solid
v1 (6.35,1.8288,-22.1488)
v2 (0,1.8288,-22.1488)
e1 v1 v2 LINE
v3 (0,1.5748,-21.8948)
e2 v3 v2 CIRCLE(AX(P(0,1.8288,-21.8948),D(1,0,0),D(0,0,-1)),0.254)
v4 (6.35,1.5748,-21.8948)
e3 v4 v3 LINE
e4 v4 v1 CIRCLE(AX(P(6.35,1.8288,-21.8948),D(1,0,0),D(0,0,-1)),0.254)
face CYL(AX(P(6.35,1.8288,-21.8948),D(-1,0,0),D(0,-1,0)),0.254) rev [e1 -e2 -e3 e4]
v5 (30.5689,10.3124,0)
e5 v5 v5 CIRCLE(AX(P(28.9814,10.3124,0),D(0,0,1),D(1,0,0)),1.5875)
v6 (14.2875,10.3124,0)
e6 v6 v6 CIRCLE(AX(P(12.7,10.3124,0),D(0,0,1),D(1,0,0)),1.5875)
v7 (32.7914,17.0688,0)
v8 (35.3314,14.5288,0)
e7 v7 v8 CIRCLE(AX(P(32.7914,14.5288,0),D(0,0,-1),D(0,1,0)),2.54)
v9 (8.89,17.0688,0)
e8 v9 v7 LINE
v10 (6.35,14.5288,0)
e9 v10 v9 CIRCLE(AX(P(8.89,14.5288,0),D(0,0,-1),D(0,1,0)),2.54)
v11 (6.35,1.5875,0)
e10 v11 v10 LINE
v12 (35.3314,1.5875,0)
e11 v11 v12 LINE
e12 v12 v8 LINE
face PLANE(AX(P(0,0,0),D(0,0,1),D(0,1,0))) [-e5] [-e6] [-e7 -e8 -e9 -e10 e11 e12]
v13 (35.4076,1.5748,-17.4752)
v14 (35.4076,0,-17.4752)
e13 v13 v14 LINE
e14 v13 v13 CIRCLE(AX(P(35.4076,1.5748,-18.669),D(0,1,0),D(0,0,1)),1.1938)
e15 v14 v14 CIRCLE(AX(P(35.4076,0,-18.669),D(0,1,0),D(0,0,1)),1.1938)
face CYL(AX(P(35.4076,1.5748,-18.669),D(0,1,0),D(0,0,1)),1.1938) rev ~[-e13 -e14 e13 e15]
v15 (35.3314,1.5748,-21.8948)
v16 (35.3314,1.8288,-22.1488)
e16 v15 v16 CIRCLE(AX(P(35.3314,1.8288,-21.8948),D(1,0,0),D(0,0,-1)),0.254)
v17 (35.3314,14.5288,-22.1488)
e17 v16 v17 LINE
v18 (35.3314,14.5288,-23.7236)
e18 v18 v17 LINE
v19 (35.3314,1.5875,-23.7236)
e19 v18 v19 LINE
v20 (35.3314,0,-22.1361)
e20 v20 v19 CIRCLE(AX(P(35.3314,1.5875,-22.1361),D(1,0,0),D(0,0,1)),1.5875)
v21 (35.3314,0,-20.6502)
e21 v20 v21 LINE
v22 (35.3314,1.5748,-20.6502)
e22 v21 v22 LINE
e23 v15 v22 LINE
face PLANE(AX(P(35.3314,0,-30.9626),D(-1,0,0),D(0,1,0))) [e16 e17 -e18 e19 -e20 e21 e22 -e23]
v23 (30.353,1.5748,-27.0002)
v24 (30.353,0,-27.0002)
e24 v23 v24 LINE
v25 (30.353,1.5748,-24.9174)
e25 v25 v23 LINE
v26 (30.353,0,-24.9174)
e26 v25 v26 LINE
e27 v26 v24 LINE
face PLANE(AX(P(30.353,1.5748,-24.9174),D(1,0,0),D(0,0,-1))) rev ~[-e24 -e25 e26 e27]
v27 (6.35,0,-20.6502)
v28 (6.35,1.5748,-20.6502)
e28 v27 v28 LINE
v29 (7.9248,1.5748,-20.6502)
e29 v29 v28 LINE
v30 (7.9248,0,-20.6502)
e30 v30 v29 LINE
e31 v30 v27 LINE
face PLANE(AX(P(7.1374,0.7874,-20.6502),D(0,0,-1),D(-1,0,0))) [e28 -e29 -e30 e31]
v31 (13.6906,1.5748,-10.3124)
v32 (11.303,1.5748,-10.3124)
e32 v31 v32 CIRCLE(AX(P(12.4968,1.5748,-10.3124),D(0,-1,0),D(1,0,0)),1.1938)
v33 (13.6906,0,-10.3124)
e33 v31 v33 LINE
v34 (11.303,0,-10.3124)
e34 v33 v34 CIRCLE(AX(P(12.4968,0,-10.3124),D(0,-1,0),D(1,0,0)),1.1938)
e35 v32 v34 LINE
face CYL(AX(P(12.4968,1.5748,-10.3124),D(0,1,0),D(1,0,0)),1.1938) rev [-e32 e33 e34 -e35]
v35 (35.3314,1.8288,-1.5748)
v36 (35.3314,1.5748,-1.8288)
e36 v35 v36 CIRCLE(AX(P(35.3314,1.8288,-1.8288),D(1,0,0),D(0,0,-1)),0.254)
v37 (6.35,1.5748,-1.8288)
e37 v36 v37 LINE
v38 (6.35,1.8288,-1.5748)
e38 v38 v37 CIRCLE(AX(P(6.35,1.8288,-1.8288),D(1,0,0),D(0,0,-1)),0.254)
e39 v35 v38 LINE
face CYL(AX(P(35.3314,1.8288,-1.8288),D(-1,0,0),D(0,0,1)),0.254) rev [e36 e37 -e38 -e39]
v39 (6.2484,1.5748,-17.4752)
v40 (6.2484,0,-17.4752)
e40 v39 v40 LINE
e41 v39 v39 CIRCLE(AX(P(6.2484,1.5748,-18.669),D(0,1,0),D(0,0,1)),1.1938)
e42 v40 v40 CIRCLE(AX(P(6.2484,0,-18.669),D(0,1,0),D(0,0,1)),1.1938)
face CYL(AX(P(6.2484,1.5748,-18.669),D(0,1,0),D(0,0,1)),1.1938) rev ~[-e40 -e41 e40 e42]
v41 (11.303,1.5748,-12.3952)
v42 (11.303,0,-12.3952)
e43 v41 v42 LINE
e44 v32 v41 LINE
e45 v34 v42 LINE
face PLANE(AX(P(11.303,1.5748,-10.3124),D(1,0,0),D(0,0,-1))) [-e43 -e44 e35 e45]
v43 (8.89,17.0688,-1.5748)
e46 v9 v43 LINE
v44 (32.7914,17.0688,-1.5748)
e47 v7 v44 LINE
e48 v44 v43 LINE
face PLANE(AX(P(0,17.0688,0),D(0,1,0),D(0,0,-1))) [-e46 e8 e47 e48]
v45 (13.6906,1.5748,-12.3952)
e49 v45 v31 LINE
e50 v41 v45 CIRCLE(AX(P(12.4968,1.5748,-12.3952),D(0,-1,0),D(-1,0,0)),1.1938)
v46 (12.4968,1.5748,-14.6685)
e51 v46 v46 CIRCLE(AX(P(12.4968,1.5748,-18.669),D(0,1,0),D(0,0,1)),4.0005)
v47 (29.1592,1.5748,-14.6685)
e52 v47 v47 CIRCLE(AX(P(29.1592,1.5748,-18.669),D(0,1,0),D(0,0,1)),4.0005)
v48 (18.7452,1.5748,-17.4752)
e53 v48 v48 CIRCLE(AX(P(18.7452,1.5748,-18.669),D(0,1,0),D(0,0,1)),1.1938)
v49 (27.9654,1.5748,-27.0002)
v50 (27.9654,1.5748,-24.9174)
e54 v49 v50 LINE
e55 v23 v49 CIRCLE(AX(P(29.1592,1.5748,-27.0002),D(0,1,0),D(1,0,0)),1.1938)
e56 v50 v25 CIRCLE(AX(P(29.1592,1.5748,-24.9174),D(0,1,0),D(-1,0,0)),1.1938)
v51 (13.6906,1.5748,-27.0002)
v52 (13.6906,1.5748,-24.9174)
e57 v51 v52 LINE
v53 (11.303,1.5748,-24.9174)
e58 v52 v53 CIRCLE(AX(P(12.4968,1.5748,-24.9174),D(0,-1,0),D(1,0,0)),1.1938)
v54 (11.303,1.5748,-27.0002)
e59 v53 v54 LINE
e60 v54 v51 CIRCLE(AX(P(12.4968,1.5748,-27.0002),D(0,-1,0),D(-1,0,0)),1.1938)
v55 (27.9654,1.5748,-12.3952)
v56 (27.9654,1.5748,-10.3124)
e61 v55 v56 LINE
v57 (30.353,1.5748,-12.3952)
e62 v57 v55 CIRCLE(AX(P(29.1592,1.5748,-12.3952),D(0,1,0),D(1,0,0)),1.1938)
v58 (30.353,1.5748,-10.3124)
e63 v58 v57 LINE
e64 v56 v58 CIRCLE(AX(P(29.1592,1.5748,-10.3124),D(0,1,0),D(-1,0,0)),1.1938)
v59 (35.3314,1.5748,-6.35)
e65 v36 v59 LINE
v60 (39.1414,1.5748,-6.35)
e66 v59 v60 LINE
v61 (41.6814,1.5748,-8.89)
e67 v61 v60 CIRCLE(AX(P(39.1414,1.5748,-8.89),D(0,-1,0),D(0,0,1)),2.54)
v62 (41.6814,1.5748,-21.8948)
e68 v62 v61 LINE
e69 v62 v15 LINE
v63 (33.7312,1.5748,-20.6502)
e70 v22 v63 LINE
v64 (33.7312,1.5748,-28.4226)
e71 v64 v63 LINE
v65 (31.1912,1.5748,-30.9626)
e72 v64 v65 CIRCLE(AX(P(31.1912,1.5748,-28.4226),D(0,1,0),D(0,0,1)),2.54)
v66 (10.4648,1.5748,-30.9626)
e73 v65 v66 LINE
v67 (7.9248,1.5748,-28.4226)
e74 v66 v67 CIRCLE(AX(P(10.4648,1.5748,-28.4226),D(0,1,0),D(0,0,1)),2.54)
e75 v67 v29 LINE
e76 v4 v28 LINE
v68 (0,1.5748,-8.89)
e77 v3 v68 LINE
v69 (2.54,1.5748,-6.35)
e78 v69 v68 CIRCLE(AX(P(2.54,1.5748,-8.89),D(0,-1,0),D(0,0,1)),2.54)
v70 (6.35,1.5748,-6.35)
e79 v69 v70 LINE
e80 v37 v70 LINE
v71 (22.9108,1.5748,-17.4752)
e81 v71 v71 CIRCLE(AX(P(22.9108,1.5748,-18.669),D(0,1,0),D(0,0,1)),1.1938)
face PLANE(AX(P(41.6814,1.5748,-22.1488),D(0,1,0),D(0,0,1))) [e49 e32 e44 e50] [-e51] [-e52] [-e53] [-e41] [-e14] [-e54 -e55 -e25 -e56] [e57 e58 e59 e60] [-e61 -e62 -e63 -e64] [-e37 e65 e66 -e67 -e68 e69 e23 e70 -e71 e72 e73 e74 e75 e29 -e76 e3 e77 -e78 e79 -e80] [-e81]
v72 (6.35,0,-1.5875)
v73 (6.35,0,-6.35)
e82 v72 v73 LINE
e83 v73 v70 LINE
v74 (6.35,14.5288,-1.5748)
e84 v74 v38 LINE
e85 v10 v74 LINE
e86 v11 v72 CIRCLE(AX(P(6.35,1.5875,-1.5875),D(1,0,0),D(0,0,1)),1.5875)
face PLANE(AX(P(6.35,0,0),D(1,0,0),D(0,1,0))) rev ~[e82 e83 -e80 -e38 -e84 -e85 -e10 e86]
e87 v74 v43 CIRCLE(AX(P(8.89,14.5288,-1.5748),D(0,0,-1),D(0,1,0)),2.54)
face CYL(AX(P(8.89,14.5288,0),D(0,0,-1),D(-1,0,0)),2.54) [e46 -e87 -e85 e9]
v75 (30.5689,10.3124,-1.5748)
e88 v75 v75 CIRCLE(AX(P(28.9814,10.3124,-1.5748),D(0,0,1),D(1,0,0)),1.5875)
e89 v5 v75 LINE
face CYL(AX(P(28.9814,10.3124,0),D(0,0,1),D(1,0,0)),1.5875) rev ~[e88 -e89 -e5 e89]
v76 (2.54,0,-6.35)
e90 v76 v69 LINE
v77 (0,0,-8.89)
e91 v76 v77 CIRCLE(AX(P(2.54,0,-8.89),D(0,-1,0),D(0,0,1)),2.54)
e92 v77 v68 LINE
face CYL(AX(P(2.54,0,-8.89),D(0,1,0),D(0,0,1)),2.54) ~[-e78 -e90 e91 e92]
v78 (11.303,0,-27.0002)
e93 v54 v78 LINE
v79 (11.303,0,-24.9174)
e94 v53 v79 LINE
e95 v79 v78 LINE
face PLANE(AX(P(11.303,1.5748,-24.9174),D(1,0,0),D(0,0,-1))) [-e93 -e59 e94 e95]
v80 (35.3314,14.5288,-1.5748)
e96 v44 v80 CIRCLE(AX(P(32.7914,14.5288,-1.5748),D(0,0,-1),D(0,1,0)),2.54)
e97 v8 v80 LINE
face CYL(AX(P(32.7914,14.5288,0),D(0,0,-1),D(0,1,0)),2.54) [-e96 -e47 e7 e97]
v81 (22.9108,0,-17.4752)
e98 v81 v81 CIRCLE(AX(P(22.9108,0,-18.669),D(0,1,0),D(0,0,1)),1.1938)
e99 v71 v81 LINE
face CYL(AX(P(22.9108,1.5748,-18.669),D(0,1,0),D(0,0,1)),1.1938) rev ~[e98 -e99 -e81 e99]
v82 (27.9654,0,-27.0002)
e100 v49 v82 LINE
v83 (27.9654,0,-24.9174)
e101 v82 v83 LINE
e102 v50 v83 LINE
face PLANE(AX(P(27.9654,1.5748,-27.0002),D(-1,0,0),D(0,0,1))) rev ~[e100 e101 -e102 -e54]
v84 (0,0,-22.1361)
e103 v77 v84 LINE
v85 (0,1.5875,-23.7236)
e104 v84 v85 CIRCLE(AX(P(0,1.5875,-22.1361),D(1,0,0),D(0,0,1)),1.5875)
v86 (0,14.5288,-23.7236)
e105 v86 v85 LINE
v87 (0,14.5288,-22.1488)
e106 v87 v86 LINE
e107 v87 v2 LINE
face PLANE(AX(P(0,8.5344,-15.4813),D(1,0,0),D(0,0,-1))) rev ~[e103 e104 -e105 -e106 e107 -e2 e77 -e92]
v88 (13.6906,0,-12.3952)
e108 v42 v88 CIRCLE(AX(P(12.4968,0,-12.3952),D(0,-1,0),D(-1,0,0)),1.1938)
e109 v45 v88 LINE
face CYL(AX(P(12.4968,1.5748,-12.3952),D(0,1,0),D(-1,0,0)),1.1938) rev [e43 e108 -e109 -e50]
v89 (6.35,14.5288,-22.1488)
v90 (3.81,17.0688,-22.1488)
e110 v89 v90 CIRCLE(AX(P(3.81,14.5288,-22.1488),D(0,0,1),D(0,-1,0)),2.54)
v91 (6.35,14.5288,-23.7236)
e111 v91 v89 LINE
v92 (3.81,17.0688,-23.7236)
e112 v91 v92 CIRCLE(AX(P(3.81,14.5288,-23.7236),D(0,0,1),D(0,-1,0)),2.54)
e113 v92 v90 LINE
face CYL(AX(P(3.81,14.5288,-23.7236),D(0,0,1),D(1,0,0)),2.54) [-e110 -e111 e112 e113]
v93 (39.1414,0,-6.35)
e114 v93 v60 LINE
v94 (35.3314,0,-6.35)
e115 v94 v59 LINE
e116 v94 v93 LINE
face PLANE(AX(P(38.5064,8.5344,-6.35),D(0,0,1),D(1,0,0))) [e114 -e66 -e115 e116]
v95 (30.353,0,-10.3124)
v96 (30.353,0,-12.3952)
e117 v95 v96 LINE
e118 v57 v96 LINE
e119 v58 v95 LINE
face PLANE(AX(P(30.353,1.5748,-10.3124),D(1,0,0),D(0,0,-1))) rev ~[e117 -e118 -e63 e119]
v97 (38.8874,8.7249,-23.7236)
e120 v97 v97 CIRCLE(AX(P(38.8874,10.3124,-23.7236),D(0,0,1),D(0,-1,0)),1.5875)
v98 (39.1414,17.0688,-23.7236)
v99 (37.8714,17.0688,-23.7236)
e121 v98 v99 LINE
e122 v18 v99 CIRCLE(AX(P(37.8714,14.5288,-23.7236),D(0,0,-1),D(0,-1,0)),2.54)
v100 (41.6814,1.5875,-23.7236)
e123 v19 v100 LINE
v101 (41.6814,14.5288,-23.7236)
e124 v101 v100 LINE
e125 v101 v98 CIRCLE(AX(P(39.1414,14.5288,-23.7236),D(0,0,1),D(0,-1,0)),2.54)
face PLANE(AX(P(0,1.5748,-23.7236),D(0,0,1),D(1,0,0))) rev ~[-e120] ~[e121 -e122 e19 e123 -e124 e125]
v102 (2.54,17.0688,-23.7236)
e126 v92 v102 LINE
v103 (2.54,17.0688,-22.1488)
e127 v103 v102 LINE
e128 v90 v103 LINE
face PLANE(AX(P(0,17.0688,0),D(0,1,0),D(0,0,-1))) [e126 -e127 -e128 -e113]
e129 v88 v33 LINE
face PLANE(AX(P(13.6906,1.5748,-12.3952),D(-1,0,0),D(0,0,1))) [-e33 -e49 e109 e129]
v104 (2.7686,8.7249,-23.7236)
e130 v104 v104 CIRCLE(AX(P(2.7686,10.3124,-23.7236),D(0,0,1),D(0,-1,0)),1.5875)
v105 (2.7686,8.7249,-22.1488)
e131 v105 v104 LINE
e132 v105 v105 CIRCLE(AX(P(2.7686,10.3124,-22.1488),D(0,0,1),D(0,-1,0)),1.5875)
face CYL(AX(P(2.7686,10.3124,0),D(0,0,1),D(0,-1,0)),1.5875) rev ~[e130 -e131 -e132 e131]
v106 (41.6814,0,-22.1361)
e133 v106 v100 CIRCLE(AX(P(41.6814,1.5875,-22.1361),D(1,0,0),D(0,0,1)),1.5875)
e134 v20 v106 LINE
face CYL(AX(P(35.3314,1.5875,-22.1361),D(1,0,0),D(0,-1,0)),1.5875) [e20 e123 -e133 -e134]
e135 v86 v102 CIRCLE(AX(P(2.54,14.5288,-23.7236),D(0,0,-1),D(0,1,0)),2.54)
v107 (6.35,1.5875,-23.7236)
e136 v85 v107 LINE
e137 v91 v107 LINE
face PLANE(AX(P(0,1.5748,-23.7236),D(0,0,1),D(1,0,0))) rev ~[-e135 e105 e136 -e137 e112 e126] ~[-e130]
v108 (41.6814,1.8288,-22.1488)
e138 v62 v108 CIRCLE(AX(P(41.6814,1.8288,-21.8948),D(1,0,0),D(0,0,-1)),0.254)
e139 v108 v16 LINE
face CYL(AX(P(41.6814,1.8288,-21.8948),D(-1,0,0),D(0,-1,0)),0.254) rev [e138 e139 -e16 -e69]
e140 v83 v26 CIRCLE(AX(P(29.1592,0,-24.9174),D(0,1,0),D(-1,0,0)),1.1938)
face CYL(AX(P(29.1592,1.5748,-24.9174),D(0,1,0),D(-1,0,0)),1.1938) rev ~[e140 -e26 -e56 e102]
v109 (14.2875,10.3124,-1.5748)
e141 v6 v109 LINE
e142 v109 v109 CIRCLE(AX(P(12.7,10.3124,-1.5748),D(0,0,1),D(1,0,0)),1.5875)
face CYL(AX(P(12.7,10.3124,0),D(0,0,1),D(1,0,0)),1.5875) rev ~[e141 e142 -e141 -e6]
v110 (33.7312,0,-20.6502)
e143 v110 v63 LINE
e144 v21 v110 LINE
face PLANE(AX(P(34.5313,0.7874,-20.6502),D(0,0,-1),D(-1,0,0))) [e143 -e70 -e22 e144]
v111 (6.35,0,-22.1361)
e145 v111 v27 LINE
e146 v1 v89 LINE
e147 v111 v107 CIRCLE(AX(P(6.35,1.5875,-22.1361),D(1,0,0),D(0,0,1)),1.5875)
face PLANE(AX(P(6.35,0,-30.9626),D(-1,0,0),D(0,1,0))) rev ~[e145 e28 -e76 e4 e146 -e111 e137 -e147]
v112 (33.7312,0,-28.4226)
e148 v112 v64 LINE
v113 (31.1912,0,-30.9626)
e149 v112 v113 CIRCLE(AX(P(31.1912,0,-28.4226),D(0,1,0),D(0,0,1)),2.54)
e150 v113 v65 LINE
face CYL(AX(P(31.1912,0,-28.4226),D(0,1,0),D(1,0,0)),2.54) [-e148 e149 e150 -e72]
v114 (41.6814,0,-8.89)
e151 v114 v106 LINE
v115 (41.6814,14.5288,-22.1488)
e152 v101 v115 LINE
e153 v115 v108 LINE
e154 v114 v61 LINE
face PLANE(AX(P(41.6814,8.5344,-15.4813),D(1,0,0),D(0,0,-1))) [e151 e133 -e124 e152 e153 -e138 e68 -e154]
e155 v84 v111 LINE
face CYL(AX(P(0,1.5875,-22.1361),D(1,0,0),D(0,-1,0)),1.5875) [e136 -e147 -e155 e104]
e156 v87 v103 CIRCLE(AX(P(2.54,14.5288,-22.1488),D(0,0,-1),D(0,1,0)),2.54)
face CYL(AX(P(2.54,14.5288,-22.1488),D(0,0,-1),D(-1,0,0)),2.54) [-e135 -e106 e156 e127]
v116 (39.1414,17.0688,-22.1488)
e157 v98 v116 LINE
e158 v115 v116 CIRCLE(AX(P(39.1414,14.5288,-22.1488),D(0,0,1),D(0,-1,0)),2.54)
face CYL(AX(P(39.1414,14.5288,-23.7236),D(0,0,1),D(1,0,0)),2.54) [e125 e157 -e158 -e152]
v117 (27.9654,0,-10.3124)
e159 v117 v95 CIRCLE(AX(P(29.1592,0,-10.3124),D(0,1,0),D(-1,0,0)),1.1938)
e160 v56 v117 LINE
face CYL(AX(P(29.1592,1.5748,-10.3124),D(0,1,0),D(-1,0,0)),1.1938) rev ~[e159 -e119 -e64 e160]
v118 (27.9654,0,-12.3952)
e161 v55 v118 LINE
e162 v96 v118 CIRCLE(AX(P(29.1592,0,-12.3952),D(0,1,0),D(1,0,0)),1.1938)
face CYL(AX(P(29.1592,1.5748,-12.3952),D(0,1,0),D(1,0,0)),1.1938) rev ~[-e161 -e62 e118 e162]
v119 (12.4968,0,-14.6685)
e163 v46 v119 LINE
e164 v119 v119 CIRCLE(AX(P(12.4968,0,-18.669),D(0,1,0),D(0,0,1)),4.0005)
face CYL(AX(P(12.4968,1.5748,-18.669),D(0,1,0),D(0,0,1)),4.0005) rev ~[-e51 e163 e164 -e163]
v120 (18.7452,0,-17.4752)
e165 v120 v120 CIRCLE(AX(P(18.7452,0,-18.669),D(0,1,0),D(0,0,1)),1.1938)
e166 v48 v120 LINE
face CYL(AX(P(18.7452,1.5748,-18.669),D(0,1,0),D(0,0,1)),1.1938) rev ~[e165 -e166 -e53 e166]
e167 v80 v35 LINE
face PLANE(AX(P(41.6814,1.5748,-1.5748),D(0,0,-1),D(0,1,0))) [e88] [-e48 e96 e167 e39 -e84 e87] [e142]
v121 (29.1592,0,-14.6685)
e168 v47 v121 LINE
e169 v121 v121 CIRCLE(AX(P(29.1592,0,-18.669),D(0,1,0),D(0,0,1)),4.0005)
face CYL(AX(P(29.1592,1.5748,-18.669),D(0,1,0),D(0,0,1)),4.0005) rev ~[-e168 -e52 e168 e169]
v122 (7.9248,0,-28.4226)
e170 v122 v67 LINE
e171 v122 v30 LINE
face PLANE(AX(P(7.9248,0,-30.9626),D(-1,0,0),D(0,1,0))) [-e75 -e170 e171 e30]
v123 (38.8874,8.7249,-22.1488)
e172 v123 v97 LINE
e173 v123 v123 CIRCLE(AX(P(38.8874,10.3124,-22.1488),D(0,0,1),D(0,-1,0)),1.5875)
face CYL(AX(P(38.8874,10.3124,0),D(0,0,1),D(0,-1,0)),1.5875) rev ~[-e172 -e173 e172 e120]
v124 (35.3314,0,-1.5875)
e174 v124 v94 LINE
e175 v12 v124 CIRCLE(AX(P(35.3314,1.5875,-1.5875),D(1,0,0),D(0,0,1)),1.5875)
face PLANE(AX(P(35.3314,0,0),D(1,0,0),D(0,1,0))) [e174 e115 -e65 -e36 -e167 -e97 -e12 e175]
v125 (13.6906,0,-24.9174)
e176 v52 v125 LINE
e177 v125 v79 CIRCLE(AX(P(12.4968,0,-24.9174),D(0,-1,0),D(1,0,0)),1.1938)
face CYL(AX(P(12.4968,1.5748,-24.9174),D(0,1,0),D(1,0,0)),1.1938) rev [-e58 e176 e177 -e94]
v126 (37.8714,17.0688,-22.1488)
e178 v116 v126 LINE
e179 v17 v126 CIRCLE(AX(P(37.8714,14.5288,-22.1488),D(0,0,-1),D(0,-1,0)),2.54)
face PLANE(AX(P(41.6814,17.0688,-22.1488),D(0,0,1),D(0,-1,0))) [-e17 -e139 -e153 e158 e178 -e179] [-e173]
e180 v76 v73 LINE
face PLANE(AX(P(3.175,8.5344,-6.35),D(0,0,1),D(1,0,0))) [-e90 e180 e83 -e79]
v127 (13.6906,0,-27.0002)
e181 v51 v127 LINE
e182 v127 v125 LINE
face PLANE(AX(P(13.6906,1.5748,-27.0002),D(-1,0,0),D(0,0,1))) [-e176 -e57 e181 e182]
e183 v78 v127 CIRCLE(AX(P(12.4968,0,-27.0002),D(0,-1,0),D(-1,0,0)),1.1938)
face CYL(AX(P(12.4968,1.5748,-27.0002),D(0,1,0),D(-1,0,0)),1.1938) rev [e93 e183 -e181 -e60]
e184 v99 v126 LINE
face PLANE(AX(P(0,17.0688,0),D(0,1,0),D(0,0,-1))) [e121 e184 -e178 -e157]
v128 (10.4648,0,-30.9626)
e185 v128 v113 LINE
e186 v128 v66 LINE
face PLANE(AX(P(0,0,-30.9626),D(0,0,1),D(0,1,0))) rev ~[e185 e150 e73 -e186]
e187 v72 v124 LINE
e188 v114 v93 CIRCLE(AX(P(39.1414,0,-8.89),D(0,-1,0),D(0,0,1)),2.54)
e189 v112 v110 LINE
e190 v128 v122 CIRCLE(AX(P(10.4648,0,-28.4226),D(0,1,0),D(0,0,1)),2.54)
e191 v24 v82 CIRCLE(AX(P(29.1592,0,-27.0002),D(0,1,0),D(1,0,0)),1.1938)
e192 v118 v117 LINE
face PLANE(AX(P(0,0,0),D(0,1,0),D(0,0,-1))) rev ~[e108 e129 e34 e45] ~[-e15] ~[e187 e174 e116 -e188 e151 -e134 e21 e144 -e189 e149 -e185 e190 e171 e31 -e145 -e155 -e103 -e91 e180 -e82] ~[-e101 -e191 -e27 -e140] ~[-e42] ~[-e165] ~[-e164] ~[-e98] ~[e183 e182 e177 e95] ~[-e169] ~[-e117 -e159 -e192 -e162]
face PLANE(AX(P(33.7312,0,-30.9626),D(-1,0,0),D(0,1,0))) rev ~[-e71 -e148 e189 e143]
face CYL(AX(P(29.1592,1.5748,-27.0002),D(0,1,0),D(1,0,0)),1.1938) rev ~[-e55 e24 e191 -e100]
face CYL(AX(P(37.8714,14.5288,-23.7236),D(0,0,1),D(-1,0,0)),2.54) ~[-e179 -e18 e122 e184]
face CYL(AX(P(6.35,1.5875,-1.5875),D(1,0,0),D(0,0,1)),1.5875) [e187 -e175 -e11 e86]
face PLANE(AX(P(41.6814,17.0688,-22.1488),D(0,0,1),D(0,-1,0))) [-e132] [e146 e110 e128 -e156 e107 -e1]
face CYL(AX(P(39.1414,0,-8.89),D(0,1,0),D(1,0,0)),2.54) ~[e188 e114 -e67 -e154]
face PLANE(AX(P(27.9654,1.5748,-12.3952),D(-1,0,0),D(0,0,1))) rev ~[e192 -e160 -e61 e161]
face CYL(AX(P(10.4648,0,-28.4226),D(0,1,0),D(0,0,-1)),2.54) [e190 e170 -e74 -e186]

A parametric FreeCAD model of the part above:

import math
import FreeCAD as App
import Part
import Sketcher
Q = App.Units.Quantity


def edges_at(feature, points):
    """Names of the edges that pass closest to the given points."""
    edges = feature.Shape.Edges
    near = lambda p: min(range(len(edges)), key=lambda i: edges[i].distToShape(Part.Vertex(*p))[0])
    return sorted({f"Edge{near(p) + 1}" for p in points})

doc = App.newDocument("Part")
body = doc.addObject("PartDesign::Body", "Body")

sketch1 = body.newObject("Sketcher::SketchObject", "Sketch")
sketch1.AttachmentSupport = (doc.getObject("YZ_Plane"), [""])
sketch1.MapMode = "FlatFace"
sketch1.addGeometry(Part.LineSegment(App.Vector(17.0688, 0, 0), App.Vector(0, 0, 0)), False)
sketch1.addGeometry(Part.LineSegment(App.Vector(0, 0, 0), App.Vector(0, -30.9626, 0)), False)
sketch1.addGeometry(Part.LineSegment(App.Vector(0, -30.9626, 0), App.Vector(17.0688, -30.9626, 0)), False)
sketch1.addGeometry(Part.LineSegment(App.Vector(17.0688, -30.9626, 0), App.Vector(17.0688, 0, 0)), False)
sketch1.addConstraint(Sketcher.Constraint("Coincident", 0, 2, 1, 1))
sketch1.addConstraint(Sketcher.Constraint("Coincident", 1, 2, 2, 1))
sketch1.addConstraint(Sketcher.Constraint("Coincident", 2, 2, 3, 1))
sketch1.addConstraint(Sketcher.Constraint("Coincident", 3, 2, 0, 1))
sketch1.addConstraint(Sketcher.Constraint("Horizontal", 0))
sketch1.addConstraint(Sketcher.Constraint("Vertical", 1))
sketch1.addConstraint(Sketcher.Constraint("Horizontal", 2))
sketch1.addConstraint(Sketcher.Constraint("Vertical", 3))
sketch1.addConstraint(Sketcher.Constraint("Coincident", 0, 2, -1, 1))
sketch1.addConstraint(Sketcher.Constraint("DistanceX", 0, 2, 0, 1, Q("0.672 in")))
sketch1.addConstraint(Sketcher.Constraint("DistanceY", 1, 2, 1, 1, Q("1.219 in")))
pad1 = body.newObject("PartDesign::Pad", "Pad")
pad1.Profile = sketch1
pad1.Length = Q("1.641 in")

sketch2 = body.newObject("Sketcher::SketchObject", "Sketch001")
sketch2.AttachmentSupport = (doc.getObject("YZ_Plane"), [""])
sketch2.MapMode = "FlatFace"
sketch2.AttachmentOffset = App.Placement(App.Vector(0, 0, 1.641 * 25.4), App.Rotation())
sketch2.addGeometry(Part.LineSegment(App.Vector(23.535, 6.466, 0), App.Vector(-6.466, 6.466, 0)), False)
sketch2.addGeometry(Part.LineSegment(App.Vector(-6.466, 6.466, 0), App.Vector(-6.466, -37.429, 0)), False)
sketch2.addGeometry(Part.LineSegment(App.Vector(-6.466, -37.429, 0), App.Vector(23.535, -37.429, 0)), False)
sketch2.addGeometry(Part.LineSegment(App.Vector(23.535, -37.429, 0), App.Vector(23.535, 6.466, 0)), False)
sketch2.addGeometry(Part.LineSegment(App.Vector(0, 0, 0), App.Vector(17.0688, 0, 0)), False)
sketch2.addGeometry(Part.LineSegment(App.Vector(17.0688, 0, 0), App.Vector(17.0688, -1.5748, 0)), False)
sketch2.addGeometry(Part.LineSegment(App.Vector(17.0688, -1.5748, 0), App.Vector(1.5748, -1.5748, 0)), False)
sketch2.addGeometry(Part.LineSegment(App.Vector(1.5748, -1.5748, 0), App.Vector(1.5748, -22.1488, 0)), False)
sketch2.addGeometry(Part.LineSegment(App.Vector(1.5748, -22.1488, 0), App.Vector(17.0688, -22.1488, 0)), False)
sketch2.addGeometry(Part.LineSegment(App.Vector(17.0688, -22.1488, 0), App.Vector(17.0688, -23.7236, 0)), False)
sketch2.addGeometry(Part.LineSegment(App.Vector(17.0688, -23.7236, 0), App.Vector(1.5748, -23.7236, 0)), False)
sketch2.addGeometry(Part.LineSegment(App.Vector(1.5748, -23.7236, 0), App.Vector(1.5748, -30.9626, 0)), False)
sketch2.addGeometry(Part.LineSegment(App.Vector(1.5748, -30.9626, 0), App.Vector(0, -30.9626, 0)), False)
sketch2.addGeometry(Part.LineSegment(App.Vector(0, -30.9626, 0), App.Vector(0, 0, 0)), False)
sketch2.addConstraint(Sketcher.Constraint("Coincident", 0, 2, 1, 1))
sketch2.addConstraint(Sketcher.Constraint("Coincident", 1, 2, 2, 1))
sketch2.addConstraint(Sketcher.Constraint("Coincident", 2, 2, 3, 1))
sketch2.addConstraint(Sketcher.Constraint("Coincident", 3, 2, 0, 1))
sketch2.addConstraint(Sketcher.Constraint("Coincident", 4, 2, 5, 1))
sketch2.addConstraint(Sketcher.Constraint("Coincident", 5, 2, 6, 1))
sketch2.addConstraint(Sketcher.Constraint("Coincident", 6, 2, 7, 1))
sketch2.addConstraint(Sketcher.Constraint("Coincident", 7, 2, 8, 1))
sketch2.addConstraint(Sketcher.Constraint("Coincident", 8, 2, 9, 1))
sketch2.addConstraint(Sketcher.Constraint("Coincident", 9, 2, 10, 1))
sketch2.addConstraint(Sketcher.Constraint("Coincident", 10, 2, 11, 1))
sketch2.addConstraint(Sketcher.Constraint("Coincident", 11, 2, 12, 1))
sketch2.addConstraint(Sketcher.Constraint("Coincident", 12, 2, 13, 1))
sketch2.addConstraint(Sketcher.Constraint("Coincident", 13, 2, 4, 1))
sketch2.addConstraint(Sketcher.Constraint("Horizontal", 0))
sketch2.addConstraint(Sketcher.Constraint("Vertical", 1))
sketch2.addConstraint(Sketcher.Constraint("Horizontal", 2))
sketch2.addConstraint(Sketcher.Constraint("Vertical", 3))
sketch2.addConstraint(Sketcher.Constraint("Horizontal", 4))
sketch2.addConstraint(Sketcher.Constraint("Vertical", 5))
sketch2.addConstraint(Sketcher.Constraint("Horizontal", 6))
sketch2.addConstraint(Sketcher.Constraint("Vertical", 7))
sketch2.addConstraint(Sketcher.Constraint("Horizontal", 8))
sketch2.addConstraint(Sketcher.Constraint("Vertical", 9))
sketch2.addConstraint(Sketcher.Constraint("Horizontal", 10))
sketch2.addConstraint(Sketcher.Constraint("Vertical", 11))
sketch2.addConstraint(Sketcher.Constraint("Horizontal", 12))
sketch2.addConstraint(Sketcher.Constraint("Vertical", 13))
sketch2.addConstraint(Sketcher.Constraint("Coincident", 13, 2, -1, 1))
sketch2.addConstraint(Sketcher.Constraint("Vertical", 5, 2, 8, 2))
sketch2.addConstraint(Sketcher.Constraint("Vertical", 7, 2, 10, 2))
sketch2.addConstraint(Sketcher.Constraint("Equal", 12, 5))
sketch2.addConstraint(Sketcher.Constraint("Equal", 5, 9))
sketch2.addConstraint(Sketcher.Constraint("DistanceX", 6, 2, 6, 1, Q("0.61 in")))
sketch2.addConstraint(Sketcher.Constraint("DistanceY", 7, 2, 7, 1, Q("0.81 in")))
sketch2.addConstraint(Sketcher.Constraint("DistanceX", 4, 1, 4, 2, Q("0.672 in")))
sketch2.addConstraint(Sketcher.Constraint("DistanceY", 11, 2, 11, 1, Q("0.285 in")))
sketch2.addConstraint(Sketcher.Constraint("DistanceX", 0, 2, 0, 1, 30.001))
sketch2.addConstraint(Sketcher.Constraint("DistanceY", 1, 2, 1, 1, 43.895))
sketch2.addConstraint(Sketcher.Constraint("DistanceX", 0, 2, -1, 1, 6.466))
sketch2.addConstraint(Sketcher.Constraint("DistanceY", -1, 1, 0, 2, 6.466))
pocket1 = body.newObject("PartDesign::Pocket", "Pocket")
pocket1.Profile = sketch2
pocket1.Type = "ThroughAll"

sketch3 = body.newObject("Sketcher::SketchObject", "Sketch002")
sketch3.AttachmentSupport = (doc.getObject("XY_Plane"), [""])
sketch3.MapMode = "FlatFace"
sketch3.addGeometry(Part.LineSegment(App.Vector(0, 17.0688, 0), App.Vector(0, 0, 0)), False)
sketch3.addGeometry(Part.LineSegment(App.Vector(0, 0, 0), App.Vector(6.35, 0, 0)), False)
sketch3.addGeometry(Part.LineSegment(App.Vector(6.35, 0, 0), App.Vector(6.35, 17.0688, 0)), False)
sketch3.addGeometry(Part.LineSegment(App.Vector(6.35, 17.0688, 0), App.Vector(0, 17.0688, 0)), False)
sketch3.addGeometry(Part.LineSegment(App.Vector(35.3314, 17.0688, 0), App.Vector(35.3314, 0, 0)), False)
sketch3.addGeometry(Part.LineSegment(App.Vector(35.3314, 0, 0), App.Vector(41.6814, 0, 0)), False)
sketch3.addGeometry(Part.LineSegment(App.Vector(41.6814, 0, 0), App.Vector(41.6814, 17.0688, 0)), False)
sketch3.addGeometry(Part.LineSegment(App.Vector(41.6814, 17.0688, 0), App.Vector(35.3314, 17.0688, 0)), False)
sketch3.addConstraint(Sketcher.Constraint("Coincident", 0, 2, 1, 1))
sketch3.addConstraint(Sketcher.Constraint("Coincident", 1, 2, 2, 1))
sketch3.addConstraint(Sketcher.Constraint("Coincident", 2, 2, 3, 1))
sketch3.addConstraint(Sketcher.Constraint("Coincident", 3, 2, 0, 1))
sketch3.addConstraint(Sketcher.Constraint("Coincident", 4, 2, 5, 1))
sketch3.addConstraint(Sketcher.Constraint("Coincident", 5, 2, 6, 1))
sketch3.addConstraint(Sketcher.Constraint("Coincident", 6, 2, 7, 1))
sketch3.addConstraint(Sketcher.Constraint("Coincident", 7, 2, 4, 1))
sketch3.addConstraint(Sketcher.Constraint("Vertical", 0))
sketch3.addConstraint(Sketcher.Constraint("Horizontal", 1))
sketch3.addConstraint(Sketcher.Constraint("Vertical", 2))
sketch3.addConstraint(Sketcher.Constraint("Horizontal", 3))
sketch3.addConstraint(Sketcher.Constraint("Vertical", 4))
sketch3.addConstraint(Sketcher.Constraint("Horizontal", 5))
sketch3.addConstraint(Sketcher.Constraint("Vertical", 6))
sketch3.addConstraint(Sketcher.Constraint("Horizontal", 7))
sketch3.addConstraint(Sketcher.Constraint("Coincident", 0, 2, -1, 1))
sketch3.addConstraint(Sketcher.Constraint("PointOnObject", 4, 2, -1))
sketch3.addConstraint(Sketcher.Constraint("Horizontal", 3, 2, 6, 2))
sketch3.addConstraint(Sketcher.Constraint("Equal", 3, 5))
sketch3.addConstraint(Sketcher.Constraint("DistanceX", 1, 1, 1, 2, Q("0.25 in")))
sketch3.addConstraint(Sketcher.Constraint("DistanceY", 0, 2, 0, 1, Q("0.672 in")))
sketch3.addConstraint(Sketcher.Constraint("DistanceX", -1, 1, 4, 2, Q("1.391 in")))
pocket2 = body.newObject("PartDesign::Pocket", "Pocket001")
pocket2.Profile = sketch3
pocket2.Length = Q("0.25 in")

sketch4 = body.newObject("Sketcher::SketchObject", "Sketch003")
sketch4.AttachmentSupport = (doc.getObject("XZ_Plane"), [""])
sketch4.MapMode = "FlatFace"
sketch4.AttachmentOffset = App.Placement(App.Vector(0, 0, -0.062 * 25.4), App.Rotation())
sketch4.addGeometry(Part.LineSegment(App.Vector(0, -30.9626, 0), App.Vector(0, -23.7236, 0)), False)
sketch4.addGeometry(Part.LineSegment(App.Vector(0, -23.7236, 0), App.Vector(6.35, -23.7236, 0)), False)
sketch4.addGeometry(Part.LineSegment(App.Vector(6.35, -23.7236, 0), App.Vector(6.35, -30.9626, 0)), False)
sketch4.addGeometry(Part.LineSegment(App.Vector(6.35, -30.9626, 0), App.Vector(0, -30.9626, 0)), False)
sketch4.addGeometry(Part.LineSegment(App.Vector(35.3314, -30.9626, 0), App.Vector(35.3314, -23.7236, 0)), False)
sketch4.addGeometry(Part.LineSegment(App.Vector(35.3314, -23.7236, 0), App.Vector(41.6814, -23.7236, 0)), False)
sketch4.addGeometry(Part.LineSegment(App.Vector(41.6814, -23.7236, 0), App.Vector(41.6814, -30.9626, 0)), False)
sketch4.addGeometry(Part.LineSegment(App.Vector(41.6814, -30.9626, 0), App.Vector(35.3314, -30.9626, 0)), False)
sketch4.addConstraint(Sketcher.Constraint("Coincident", 0, 2, 1, 1))
sketch4.addConstraint(Sketcher.Constraint("Coincident", 1, 2, 2, 1))
sketch4.addConstraint(Sketcher.Constraint("Coincident", 2, 2, 3, 1))
sketch4.addConstraint(Sketcher.Constraint("Coincident", 3, 2, 0, 1))
sketch4.addConstraint(Sketcher.Constraint("Coincident", 4, 2, 5, 1))
sketch4.addConstraint(Sketcher.Constraint("Coincident", 5, 2, 6, 1))
sketch4.addConstraint(Sketcher.Constraint("Coincident", 6, 2, 7, 1))
sketch4.addConstraint(Sketcher.Constraint("Coincident", 7, 2, 4, 1))
sketch4.addConstraint(Sketcher.Constraint("Vertical", 0))
sketch4.addConstraint(Sketcher.Constraint("Horizontal", 1))
sketch4.addConstraint(Sketcher.Constraint("Vertical", 2))
sketch4.addConstraint(Sketcher.Constraint("Horizontal", 3))
sketch4.addConstraint(Sketcher.Constraint("Vertical", 4))
sketch4.addConstraint(Sketcher.Constraint("Horizontal", 5))
sketch4.addConstraint(Sketcher.Constraint("Vertical", 6))
sketch4.addConstraint(Sketcher.Constraint("Horizontal", 7))
sketch4.addConstraint(Sketcher.Constraint("PointOnObject", 0, 2, -2))
sketch4.addConstraint(Sketcher.Constraint("Horizontal", 1, 2, 4, 2))
sketch4.addConstraint(Sketcher.Constraint("Horizontal", 3, 2, 6, 2))
sketch4.addConstraint(Sketcher.Constraint("Equal", 3, 5))
sketch4.addConstraint(Sketcher.Constraint("DistanceX", 1, 1, 1, 2, Q("0.25 in")))
sketch4.addConstraint(Sketcher.Constraint("DistanceY", 0, 1, 0, 2, Q("0.285 in")))
sketch4.addConstraint(Sketcher.Constraint("DistanceY", 0, 2, -1, 1, Q("0.934 in")))
sketch4.addConstraint(Sketcher.Constraint("DistanceX", -1, 1, 4, 2, Q("1.391 in")))
pocket3 = body.newObject("PartDesign::Pocket", "Pocket002")
pocket3.Profile = sketch4
pocket3.Length = Q("0.062 in")
pocket3.Reversed = True

sketch5 = body.newObject("Sketcher::SketchObject", "Sketch004")
sketch5.AttachmentSupport = (doc.getObject("XY_Plane"), [""])
sketch5.MapMode = "FlatFace"
sketch5.AttachmentOffset = App.Placement(App.Vector(0, 0, -0.934 * 25.4), App.Rotation())
sketch5.addGeometry(Part.LineSegment(App.Vector(35.3314, 17.0688, 0), App.Vector(35.3314, 1.5748, 0)), False)
sketch5.addGeometry(Part.LineSegment(App.Vector(35.3314, 1.5748, 0), App.Vector(6.35, 1.5748, 0)), False)
sketch5.addGeometry(Part.LineSegment(App.Vector(6.35, 1.5748, 0), App.Vector(6.35, 17.0688, 0)), False)
sketch5.addGeometry(Part.LineSegment(App.Vector(6.35, 17.0688, 0), App.Vector(35.3314, 17.0688, 0)), False)
sketch5.addConstraint(Sketcher.Constraint("Coincident", 0, 2, 1, 1))
sketch5.addConstraint(Sketcher.Constraint("Coincident", 1, 2, 2, 1))
sketch5.addConstraint(Sketcher.Constraint("Coincident", 2, 2, 3, 1))
sketch5.addConstraint(Sketcher.Constraint("Coincident", 3, 2, 0, 1))
sketch5.addConstraint(Sketcher.Constraint("Vertical", 0))
sketch5.addConstraint(Sketcher.Constraint("Horizontal", 1))
sketch5.addConstraint(Sketcher.Constraint("Vertical", 2))
sketch5.addConstraint(Sketcher.Constraint("Horizontal", 3))
sketch5.addConstraint(Sketcher.Constraint("DistanceY", 0, 2, 0, 1, Q("0.61 in")))
sketch5.addConstraint(Sketcher.Constraint("DistanceX", 1, 2, 1, 1, Q("1.141 in")))
sketch5.addConstraint(Sketcher.Constraint("DistanceX", -1, 1, 1, 2, Q("0.25 in")))
sketch5.addConstraint(Sketcher.Constraint("DistanceY", -1, 1, 0, 2, Q("0.062 in")))
pocket4 = body.newObject("PartDesign::Pocket", "Pocket003")
pocket4.Profile = sketch5
pocket4.Length = Q("0.062 in")
pocket4.Reversed = True

sketch6 = body.newObject("Sketcher::SketchObject", "Sketch005")
sketch6.AttachmentSupport = (doc.getObject("XY_Plane"), [""])
sketch6.MapMode = "FlatFace"
sketch6.AttachmentOffset = App.Placement(App.Vector(0, 0, -1.219 * 25.4), App.Rotation())
sketch6.addGeometry(Part.LineSegment(App.Vector(35.3314, 1.5748, 0), App.Vector(35.3314, 0, 0)), False)
sketch6.addGeometry(Part.LineSegment(App.Vector(35.3314, 0, 0), App.Vector(33.7312, 0, 0)), False)
sketch6.addGeometry(Part.LineSegment(App.Vector(33.7312, 0, 0), App.Vector(33.7312, 1.5748, 0)), False)
sketch6.addGeometry(Part.LineSegment(App.Vector(33.7312, 1.5748, 0), App.Vector(35.3314, 1.5748, 0)), False)
sketch6.addGeometry(Part.LineSegment(App.Vector(7.9248, 1.5748, 0), App.Vector(7.9248, 0, 0)), False)
sketch6.addGeometry(Part.LineSegment(App.Vector(7.9248, 0, 0), App.Vector(6.35, 0, 0)), False)
sketch6.addGeometry(Part.LineSegment(App.Vector(6.35, 0, 0), App.Vector(6.35, 1.5748, 0)), False)
sketch6.addGeometry(Part.LineSegment(App.Vector(6.35, 1.5748, 0), App.Vector(7.9248, 1.5748, 0)), False)
sketch6.addConstraint(Sketcher.Constraint("Coincident", 0, 2, 1, 1))
sketch6.addConstraint(Sketcher.Constraint("Coincident", 1, 2, 2, 1))
sketch6.addConstraint(Sketcher.Constraint("Coincident", 2, 2, 3, 1))
sketch6.addConstraint(Sketcher.Constraint("Coincident", 3, 2, 0, 1))
sketch6.addConstraint(Sketcher.Constraint("Coincident", 4, 2, 5, 1))
sketch6.addConstraint(Sketcher.Constraint("Coincident", 5, 2, 6, 1))
sketch6.addConstraint(Sketcher.Constraint("Coincident", 6, 2, 7, 1))
sketch6.addConstraint(Sketcher.Constraint("Coincident", 7, 2, 4, 1))
sketch6.addConstraint(Sketcher.Constraint("Vertical", 0))
sketch6.addConstraint(Sketcher.Constraint("Horizontal", 1))
sketch6.addConstraint(Sketcher.Constraint("Vertical", 2))
sketch6.addConstraint(Sketcher.Constraint("Horizontal", 3))
sketch6.addConstraint(Sketcher.Constraint("Vertical", 4))
sketch6.addConstraint(Sketcher.Constraint("Horizontal", 5))
sketch6.addConstraint(Sketcher.Constraint("Vertical", 6))
sketch6.addConstraint(Sketcher.Constraint("Horizontal", 7))
sketch6.addConstraint(Sketcher.Constraint("PointOnObject", 0, 2, -1))
sketch6.addConstraint(Sketcher.Constraint("PointOnObject", 4, 2, -1))
sketch6.addConstraint(Sketcher.Constraint("Horizontal", 3, 2, 6, 2))
sketch6.addConstraint(Sketcher.Constraint("Equal", 7, 0))
sketch6.addConstraint(Sketcher.Constraint("DistanceX", 1, 2, 1, 1, Q("0.063 in")))
sketch6.addConstraint(Sketcher.Constraint("DistanceX", 5, 2, 5, 1, Q("0.062 in")))
sketch6.addConstraint(Sketcher.Constraint("DistanceX", -1, 1, 5, 2, Q("0.25 in")))
sketch6.addConstraint(Sketcher.Constraint("DistanceX", -1, 1, 0, 2, Q("1.391 in")))
pocket5 = body.newObject("PartDesign::Pocket", "Pocket004")
pocket5.Profile = sketch6
pocket5.Length = Q("0.406 in")
pocket5.Reversed = True
doc.recompute()

fillet = body.newObject("PartDesign::Fillet", "Fillet")
fillet.Base = (pocket5, edges_at(pocket5, [(3.175, 0, -23.724), (38.506, 0, -23.724), (20.841, 0, 0)]))
fillet.Radius = Q("0.0625 in")
doc.recompute()

fillet2 = body.newObject("PartDesign::Fillet", "Fillet001")
fillet2.Base = (fillet, edges_at(fillet, [(38.506, 1.575, -22.149), (3.175, 1.575, -22.149), (20.841, 1.575, -1.575)]))
fillet2.Radius = Q("0.01 in")

sketch7 = body.newObject("Sketcher::SketchObject", "Sketch006")
sketch7.AttachmentSupport = (doc.getObject("XZ_Plane"), [""])
sketch7.MapMode = "FlatFace"
sketch7.AttachmentOffset = App.Placement(App.Vector(0, 0, -0.062 * 25.4), App.Rotation())
sketch7.addGeometry(Part.Circle(App.Vector(12.4968, -18.669, 0), App.Vector(0, 0, 1), 4.0005), False)
sketch7.addGeometry(Part.Circle(App.Vector(18.7452, -18.669, 0), App.Vector(0, 0, 1), 1.1938), False)
sketch7.addGeometry(Part.Circle(App.Vector(6.2484, -18.669, 0), App.Vector(0, 0, 1), 1.1938), False)
sketch7.addGeometry(Part.Circle(App.Vector(22.9108, -18.669, 0), App.Vector(0, 0, 1), 1.1938), False)
sketch7.addGeometry(Part.Circle(App.Vector(29.1592, -18.669, 0), App.Vector(0, 0, 1), 4.0005), False)
sketch7.addGeometry(Part.Circle(App.Vector(35.4076, -18.669, 0), App.Vector(0, 0, 1), 1.1938), False)
sketch7.addGeometry(Part.LineSegment(App.Vector(13.6906, -24.9174, 0), App.Vector(13.6906, -27.0002, 0)), False)
sketch7.addGeometry(Part.ArcOfCircle(Part.Circle(App.Vector(12.4968, -27.0002, 0), App.Vector(0, 0, 1), 1.1938), math.radians(180), math.radians(360)), False)
sketch7.addGeometry(Part.LineSegment(App.Vector(11.303, -27.0002, 0), App.Vector(11.303, -24.9174, 0)), False)
sketch7.addGeometry(Part.ArcOfCircle(Part.Circle(App.Vector(12.4968, -24.9174, 0), App.Vector(0, 0, 1), 1.1938), math.radians(0), math.radians(180)), False)
sketch7.addGeometry(Part.LineSegment(App.Vector(13.6906, -10.3124, 0), App.Vector(13.6906, -12.3952, 0)), False)
sketch7.addGeometry(Part.ArcOfCircle(Part.Circle(App.Vector(12.4968, -12.3952, 0), App.Vector(0, 0, 1), 1.1938), math.radians(180), math.radians(360)), False)
sketch7.addGeometry(Part.LineSegment(App.Vector(11.303, -12.3952, 0), App.Vector(11.303, -10.3124, 0)), False)
sketch7.addGeometry(Part.ArcOfCircle(Part.Circle(App.Vector(12.4968, -10.3124, 0), App.Vector(0, 0, 1), 1.1938), math.radians(0), math.radians(180)), False)
sketch7.addGeometry(Part.LineSegment(App.Vector(27.9654, -12.3952, 0), App.Vector(27.9654, -10.3124, 0)), False)
sketch7.addGeometry(Part.ArcOfCircle(Part.Circle(App.Vector(29.1592, -10.3124, 0), App.Vector(0, 0, 1), 1.1938), math.radians(0), math.radians(180)), False)
sketch7.addGeometry(Part.LineSegment(App.Vector(30.353, -10.3124, 0), App.Vector(30.353, -12.3952, 0)), False)
sketch7.addGeometry(Part.ArcOfCircle(Part.Circle(App.Vector(29.1592, -12.3952, 0), App.Vector(0, 0, 1), 1.1938), math.radians(180), math.radians(360)), False)
sketch7.addGeometry(Part.LineSegment(App.Vector(27.9654, -27.0002, 0), App.Vector(27.9654, -24.9174, 0)), False)
sketch7.addGeometry(Part.ArcOfCircle(Part.Circle(App.Vector(29.1592, -24.9174, 0), App.Vector(0, 0, 1), 1.1938), math.radians(0), math.radians(180)), False)
sketch7.addGeometry(Part.LineSegment(App.Vector(30.353, -24.9174, 0), App.Vector(30.353, -27.0002, 0)), False)
sketch7.addGeometry(Part.ArcOfCircle(Part.Circle(App.Vector(29.1592, -27.0002, 0), App.Vector(0, 0, 1), 1.1938), math.radians(180), math.radians(360)), False)
sketch7.addConstraint(Sketcher.Constraint("Tangent", 6, 2, 7, 2))
sketch7.addConstraint(Sketcher.Constraint("Tangent", 7, 1, 8, 1))
sketch7.addConstraint(Sketcher.Constraint("Tangent", 8, 2, 9, 2))
sketch7.addConstraint(Sketcher.Constraint("Tangent", 9, 1, 6, 1))
sketch7.addConstraint(Sketcher.Constraint("Tangent", 10, 2, 11, 2))
sketch7.addConstraint(Sketcher.Constraint("Tangent", 11, 1, 12, 1))
sketch7.addConstraint(Sketcher.Constraint("Tangent", 12, 2, 13, 2))
sketch7.addConstraint(Sketcher.Constraint("Tangent", 13, 1, 10, 1))
sketch7.addConstraint(Sketcher.Constraint("Tangent", 14, 2, 15, 2))
sketch7.addConstraint(Sketcher.Constraint("Tangent", 15, 1, 16, 1))
sketch7.addConstraint(Sketcher.Constraint("Tangent", 16, 2, 17, 2))
sketch7.addConstraint(Sketcher.Constraint("Tangent", 17, 1, 14, 1))
sketch7.addConstraint(Sketcher.Constraint("Tangent", 18, 2, 19, 2))
sketch7.addConstraint(Sketcher.Constraint("Tangent", 19, 1, 20, 1))
sketch7.addConstraint(Sketcher.Constraint("Tangent", 20, 2, 21, 2))
sketch7.addConstraint(Sketcher.Constraint("Tangent", 21, 1, 18, 1))
sketch7.addConstraint(Sketcher.Constraint("Vertical", 6))
sketch7.addConstraint(Sketcher.Constraint("Vertical", 8))
sketch7.addConstraint(Sketcher.Constraint("Vertical", 10))
sketch7.addConstraint(Sketcher.Constraint("Vertical", 12))
sketch7.addConstraint(Sketcher.Constraint("Vertical", 14))
sketch7.addConstraint(Sketcher.Constraint("Vertical", 16))
sketch7.addConstraint(Sketcher.Constraint("Vertical", 18))
sketch7.addConstraint(Sketcher.Constraint("Vertical", 20))
sketch7.addConstraint(Sketcher.Constraint("Equal", 1, 2))
sketch7.addConstraint(Sketcher.Constraint("Equal", 2, 3))
sketch7.addConstraint(Sketcher.Constraint("Equal", 0, 4))
sketch7.addConstraint(Sketcher.Constraint("Equal", 3, 5))
sketch7.addConstraint(Sketcher.Constraint("Equal", 5, 7))
sketch7.addConstraint(Sketcher.Constraint("Equal", 9, 11))
sketch7.addConstraint(Sketcher.Constraint("Equal", 13, 15))
sketch7.addConstraint(Sketcher.Constraint("Equal", 17, 19))
sketch7.addConstraint(Sketcher.Constraint("Horizontal", 0, 3, 1, 3))
sketch7.addConstraint(Sketcher.Constraint("Horizontal", 1, 3, 2, 3))
sketch7.addConstraint(Sketcher.Constraint("Horizontal", 2, 3, 3, 3))
sketch7.addConstraint(Sketcher.Constraint("Horizontal", 3, 3, 4, 3))
sketch7.addConstraint(Sketcher.Constraint("Horizontal", 4, 3, 5, 3))
sketch7.addConstraint(Sketcher.Constraint("Horizontal", 13, 3, 15, 3))
sketch7.addConstraint(Sketcher.Constraint("Horizontal", 11, 3, 17, 3))
sketch7.addConstraint(Sketcher.Constraint("Horizontal", 9, 3, 19, 3))
sketch7.addConstraint(Sketcher.Constraint("Horizontal", 7, 3, 21, 3))
sketch7.addConstraint(Sketcher.Constraint("Vertical", 0, 3, 7, 3))
sketch7.addConstraint(Sketcher.Constraint("Vertical", 9, 3, 11, 3))
sketch7.addConstraint(Sketcher.Constraint("Vertical", 4, 3, 15, 3))
sketch7.addConstraint(Sketcher.Constraint("Vertical", 17, 3, 19, 3))
sketch7.addConstraint(Sketcher.Constraint("Equal", 8, 10))
sketch7.addConstraint(Sketcher.Constraint("Diameter", 0, Q("0.315 in")))
sketch7.addConstraint(Sketcher.Constraint("Diameter", 1, Q("0.094 in")))
sketch7.addConstraint(Sketcher.Constraint("DistanceY", 6, 2, 6, 1, Q("0.082 in")))
sketch7.addConstraint(Sketcher.Constraint("DistanceX", 0, 3, 3, 3, Q("0.41 in")))
sketch7.addConstraint(Sketcher.Constraint("DistanceX", 1, 3, 4, 3, Q("0.41 in")))
sketch7.addConstraint(Sketcher.Constraint("DistanceX", -1, 1, 0, 3, Q("0.492 in")))
sketch7.addConstraint(Sketcher.Constraint("DistanceY", 0, 3, -1, 1, Q("0.735 in")))
sketch7.addConstraint(Sketcher.Constraint("DistanceX", -1, 1, 1, 3, Q("0.738 in")))
sketch7.addConstraint(Sketcher.Constraint("DistanceX", -1, 1, 2, 3, Q("0.246 in")))
sketch7.addConstraint(Sketcher.Constraint("DistanceX", -1, 1, 5, 3, Q("1.394 in")))
sketch7.addConstraint(Sketcher.Constraint("DistanceY", 7, 3, -1, 1, Q("1.063 in")))
sketch7.addConstraint(Sketcher.Constraint("DistanceY", 11, 3, -1, 1, Q("0.488 in")))
pocket6 = body.newObject("PartDesign::Pocket", "Pocket005")
pocket6.Profile = sketch7
pocket6.Length = Q("0.062 in")
pocket6.Reversed = True

sketch8 = body.newObject("Sketcher::SketchObject", "Sketch007")
sketch8.AttachmentSupport = (doc.getObject("XY_Plane"), [""])
sketch8.MapMode = "FlatFace"
sketch8.addGeometry(Part.Circle(App.Vector(2.7686, 10.3124, 0), App.Vector(0, 0, 1), 1.5875), False)
sketch8.addGeometry(Part.Circle(App.Vector(12.7, 10.3124, 0), App.Vector(0, 0, 1), 1.5875), False)
sketch8.addGeometry(Part.Circle(App.Vector(28.9814, 10.3124, 0), App.Vector(0, 0, 1), 1.5875), False)
sketch8.addGeometry(Part.Circle(App.Vector(38.8874, 10.3124, 0), App.Vector(0, 0, 1), 1.5875), False)
sketch8.addConstraint(Sketcher.Constraint("Equal", 0, 1))
sketch8.addConstraint(Sketcher.Constraint("Equal", 1, 2))
sketch8.addConstraint(Sketcher.Constraint("Equal", 2, 3))
sketch8.addConstraint(Sketcher.Constraint("Horizontal", 0, 3, 1, 3))
sketch8.addConstraint(Sketcher.Constraint("Horizontal", 1, 3, 2, 3))
sketch8.addConstraint(Sketcher.Constraint("Horizontal", 2, 3, 3, 3))
sketch8.addConstraint(Sketcher.Constraint("Diameter", 0, Q("0.125 in")))
sketch8.addConstraint(Sketcher.Constraint("DistanceX", -1, 1, 1, 3, Q("0.5 in")))
sketch8.addConstraint(Sketcher.Constraint("DistanceX", 2, 3, 3, 3, Q("0.39 in")))
sketch8.addConstraint(Sketcher.Constraint("DistanceX", -1, 1, 0, 3, Q("0.109 in")))
sketch8.addConstraint(Sketcher.Constraint("DistanceY", -1, 1, 0, 3, Q("0.406 in")))
sketch8.addConstraint(Sketcher.Constraint("DistanceX", -1, 1, 2, 3, Q("1.141 in")))
pocket7 = body.newObject("PartDesign::Pocket", "Pocket006")
pocket7.Profile = sketch8
pocket7.Type = "ThroughAll"
doc.recompute()

fillet3 = body.newObject("PartDesign::Fillet", "Fillet002")
fillet3.Base = (pocket7, edges_at(pocket7, [
    (6.35, 17.069, -22.936),
    (35.331, 17.069, -22.936),
    (0, 17.069, -22.936),
    (33.731, 0.787, -30.963),
    (7.925, 0.787, -30.963),
    (41.681, 17.069, -22.936),
    (0, 0.787, -6.35),
    (6.35, 17.069, -0.787),
    (35.331, 17.069, -0.787),
    (41.681, 0.787, -6.35),
]))
fillet3.Radius = Q("0.1 in")

doc.recompute()
